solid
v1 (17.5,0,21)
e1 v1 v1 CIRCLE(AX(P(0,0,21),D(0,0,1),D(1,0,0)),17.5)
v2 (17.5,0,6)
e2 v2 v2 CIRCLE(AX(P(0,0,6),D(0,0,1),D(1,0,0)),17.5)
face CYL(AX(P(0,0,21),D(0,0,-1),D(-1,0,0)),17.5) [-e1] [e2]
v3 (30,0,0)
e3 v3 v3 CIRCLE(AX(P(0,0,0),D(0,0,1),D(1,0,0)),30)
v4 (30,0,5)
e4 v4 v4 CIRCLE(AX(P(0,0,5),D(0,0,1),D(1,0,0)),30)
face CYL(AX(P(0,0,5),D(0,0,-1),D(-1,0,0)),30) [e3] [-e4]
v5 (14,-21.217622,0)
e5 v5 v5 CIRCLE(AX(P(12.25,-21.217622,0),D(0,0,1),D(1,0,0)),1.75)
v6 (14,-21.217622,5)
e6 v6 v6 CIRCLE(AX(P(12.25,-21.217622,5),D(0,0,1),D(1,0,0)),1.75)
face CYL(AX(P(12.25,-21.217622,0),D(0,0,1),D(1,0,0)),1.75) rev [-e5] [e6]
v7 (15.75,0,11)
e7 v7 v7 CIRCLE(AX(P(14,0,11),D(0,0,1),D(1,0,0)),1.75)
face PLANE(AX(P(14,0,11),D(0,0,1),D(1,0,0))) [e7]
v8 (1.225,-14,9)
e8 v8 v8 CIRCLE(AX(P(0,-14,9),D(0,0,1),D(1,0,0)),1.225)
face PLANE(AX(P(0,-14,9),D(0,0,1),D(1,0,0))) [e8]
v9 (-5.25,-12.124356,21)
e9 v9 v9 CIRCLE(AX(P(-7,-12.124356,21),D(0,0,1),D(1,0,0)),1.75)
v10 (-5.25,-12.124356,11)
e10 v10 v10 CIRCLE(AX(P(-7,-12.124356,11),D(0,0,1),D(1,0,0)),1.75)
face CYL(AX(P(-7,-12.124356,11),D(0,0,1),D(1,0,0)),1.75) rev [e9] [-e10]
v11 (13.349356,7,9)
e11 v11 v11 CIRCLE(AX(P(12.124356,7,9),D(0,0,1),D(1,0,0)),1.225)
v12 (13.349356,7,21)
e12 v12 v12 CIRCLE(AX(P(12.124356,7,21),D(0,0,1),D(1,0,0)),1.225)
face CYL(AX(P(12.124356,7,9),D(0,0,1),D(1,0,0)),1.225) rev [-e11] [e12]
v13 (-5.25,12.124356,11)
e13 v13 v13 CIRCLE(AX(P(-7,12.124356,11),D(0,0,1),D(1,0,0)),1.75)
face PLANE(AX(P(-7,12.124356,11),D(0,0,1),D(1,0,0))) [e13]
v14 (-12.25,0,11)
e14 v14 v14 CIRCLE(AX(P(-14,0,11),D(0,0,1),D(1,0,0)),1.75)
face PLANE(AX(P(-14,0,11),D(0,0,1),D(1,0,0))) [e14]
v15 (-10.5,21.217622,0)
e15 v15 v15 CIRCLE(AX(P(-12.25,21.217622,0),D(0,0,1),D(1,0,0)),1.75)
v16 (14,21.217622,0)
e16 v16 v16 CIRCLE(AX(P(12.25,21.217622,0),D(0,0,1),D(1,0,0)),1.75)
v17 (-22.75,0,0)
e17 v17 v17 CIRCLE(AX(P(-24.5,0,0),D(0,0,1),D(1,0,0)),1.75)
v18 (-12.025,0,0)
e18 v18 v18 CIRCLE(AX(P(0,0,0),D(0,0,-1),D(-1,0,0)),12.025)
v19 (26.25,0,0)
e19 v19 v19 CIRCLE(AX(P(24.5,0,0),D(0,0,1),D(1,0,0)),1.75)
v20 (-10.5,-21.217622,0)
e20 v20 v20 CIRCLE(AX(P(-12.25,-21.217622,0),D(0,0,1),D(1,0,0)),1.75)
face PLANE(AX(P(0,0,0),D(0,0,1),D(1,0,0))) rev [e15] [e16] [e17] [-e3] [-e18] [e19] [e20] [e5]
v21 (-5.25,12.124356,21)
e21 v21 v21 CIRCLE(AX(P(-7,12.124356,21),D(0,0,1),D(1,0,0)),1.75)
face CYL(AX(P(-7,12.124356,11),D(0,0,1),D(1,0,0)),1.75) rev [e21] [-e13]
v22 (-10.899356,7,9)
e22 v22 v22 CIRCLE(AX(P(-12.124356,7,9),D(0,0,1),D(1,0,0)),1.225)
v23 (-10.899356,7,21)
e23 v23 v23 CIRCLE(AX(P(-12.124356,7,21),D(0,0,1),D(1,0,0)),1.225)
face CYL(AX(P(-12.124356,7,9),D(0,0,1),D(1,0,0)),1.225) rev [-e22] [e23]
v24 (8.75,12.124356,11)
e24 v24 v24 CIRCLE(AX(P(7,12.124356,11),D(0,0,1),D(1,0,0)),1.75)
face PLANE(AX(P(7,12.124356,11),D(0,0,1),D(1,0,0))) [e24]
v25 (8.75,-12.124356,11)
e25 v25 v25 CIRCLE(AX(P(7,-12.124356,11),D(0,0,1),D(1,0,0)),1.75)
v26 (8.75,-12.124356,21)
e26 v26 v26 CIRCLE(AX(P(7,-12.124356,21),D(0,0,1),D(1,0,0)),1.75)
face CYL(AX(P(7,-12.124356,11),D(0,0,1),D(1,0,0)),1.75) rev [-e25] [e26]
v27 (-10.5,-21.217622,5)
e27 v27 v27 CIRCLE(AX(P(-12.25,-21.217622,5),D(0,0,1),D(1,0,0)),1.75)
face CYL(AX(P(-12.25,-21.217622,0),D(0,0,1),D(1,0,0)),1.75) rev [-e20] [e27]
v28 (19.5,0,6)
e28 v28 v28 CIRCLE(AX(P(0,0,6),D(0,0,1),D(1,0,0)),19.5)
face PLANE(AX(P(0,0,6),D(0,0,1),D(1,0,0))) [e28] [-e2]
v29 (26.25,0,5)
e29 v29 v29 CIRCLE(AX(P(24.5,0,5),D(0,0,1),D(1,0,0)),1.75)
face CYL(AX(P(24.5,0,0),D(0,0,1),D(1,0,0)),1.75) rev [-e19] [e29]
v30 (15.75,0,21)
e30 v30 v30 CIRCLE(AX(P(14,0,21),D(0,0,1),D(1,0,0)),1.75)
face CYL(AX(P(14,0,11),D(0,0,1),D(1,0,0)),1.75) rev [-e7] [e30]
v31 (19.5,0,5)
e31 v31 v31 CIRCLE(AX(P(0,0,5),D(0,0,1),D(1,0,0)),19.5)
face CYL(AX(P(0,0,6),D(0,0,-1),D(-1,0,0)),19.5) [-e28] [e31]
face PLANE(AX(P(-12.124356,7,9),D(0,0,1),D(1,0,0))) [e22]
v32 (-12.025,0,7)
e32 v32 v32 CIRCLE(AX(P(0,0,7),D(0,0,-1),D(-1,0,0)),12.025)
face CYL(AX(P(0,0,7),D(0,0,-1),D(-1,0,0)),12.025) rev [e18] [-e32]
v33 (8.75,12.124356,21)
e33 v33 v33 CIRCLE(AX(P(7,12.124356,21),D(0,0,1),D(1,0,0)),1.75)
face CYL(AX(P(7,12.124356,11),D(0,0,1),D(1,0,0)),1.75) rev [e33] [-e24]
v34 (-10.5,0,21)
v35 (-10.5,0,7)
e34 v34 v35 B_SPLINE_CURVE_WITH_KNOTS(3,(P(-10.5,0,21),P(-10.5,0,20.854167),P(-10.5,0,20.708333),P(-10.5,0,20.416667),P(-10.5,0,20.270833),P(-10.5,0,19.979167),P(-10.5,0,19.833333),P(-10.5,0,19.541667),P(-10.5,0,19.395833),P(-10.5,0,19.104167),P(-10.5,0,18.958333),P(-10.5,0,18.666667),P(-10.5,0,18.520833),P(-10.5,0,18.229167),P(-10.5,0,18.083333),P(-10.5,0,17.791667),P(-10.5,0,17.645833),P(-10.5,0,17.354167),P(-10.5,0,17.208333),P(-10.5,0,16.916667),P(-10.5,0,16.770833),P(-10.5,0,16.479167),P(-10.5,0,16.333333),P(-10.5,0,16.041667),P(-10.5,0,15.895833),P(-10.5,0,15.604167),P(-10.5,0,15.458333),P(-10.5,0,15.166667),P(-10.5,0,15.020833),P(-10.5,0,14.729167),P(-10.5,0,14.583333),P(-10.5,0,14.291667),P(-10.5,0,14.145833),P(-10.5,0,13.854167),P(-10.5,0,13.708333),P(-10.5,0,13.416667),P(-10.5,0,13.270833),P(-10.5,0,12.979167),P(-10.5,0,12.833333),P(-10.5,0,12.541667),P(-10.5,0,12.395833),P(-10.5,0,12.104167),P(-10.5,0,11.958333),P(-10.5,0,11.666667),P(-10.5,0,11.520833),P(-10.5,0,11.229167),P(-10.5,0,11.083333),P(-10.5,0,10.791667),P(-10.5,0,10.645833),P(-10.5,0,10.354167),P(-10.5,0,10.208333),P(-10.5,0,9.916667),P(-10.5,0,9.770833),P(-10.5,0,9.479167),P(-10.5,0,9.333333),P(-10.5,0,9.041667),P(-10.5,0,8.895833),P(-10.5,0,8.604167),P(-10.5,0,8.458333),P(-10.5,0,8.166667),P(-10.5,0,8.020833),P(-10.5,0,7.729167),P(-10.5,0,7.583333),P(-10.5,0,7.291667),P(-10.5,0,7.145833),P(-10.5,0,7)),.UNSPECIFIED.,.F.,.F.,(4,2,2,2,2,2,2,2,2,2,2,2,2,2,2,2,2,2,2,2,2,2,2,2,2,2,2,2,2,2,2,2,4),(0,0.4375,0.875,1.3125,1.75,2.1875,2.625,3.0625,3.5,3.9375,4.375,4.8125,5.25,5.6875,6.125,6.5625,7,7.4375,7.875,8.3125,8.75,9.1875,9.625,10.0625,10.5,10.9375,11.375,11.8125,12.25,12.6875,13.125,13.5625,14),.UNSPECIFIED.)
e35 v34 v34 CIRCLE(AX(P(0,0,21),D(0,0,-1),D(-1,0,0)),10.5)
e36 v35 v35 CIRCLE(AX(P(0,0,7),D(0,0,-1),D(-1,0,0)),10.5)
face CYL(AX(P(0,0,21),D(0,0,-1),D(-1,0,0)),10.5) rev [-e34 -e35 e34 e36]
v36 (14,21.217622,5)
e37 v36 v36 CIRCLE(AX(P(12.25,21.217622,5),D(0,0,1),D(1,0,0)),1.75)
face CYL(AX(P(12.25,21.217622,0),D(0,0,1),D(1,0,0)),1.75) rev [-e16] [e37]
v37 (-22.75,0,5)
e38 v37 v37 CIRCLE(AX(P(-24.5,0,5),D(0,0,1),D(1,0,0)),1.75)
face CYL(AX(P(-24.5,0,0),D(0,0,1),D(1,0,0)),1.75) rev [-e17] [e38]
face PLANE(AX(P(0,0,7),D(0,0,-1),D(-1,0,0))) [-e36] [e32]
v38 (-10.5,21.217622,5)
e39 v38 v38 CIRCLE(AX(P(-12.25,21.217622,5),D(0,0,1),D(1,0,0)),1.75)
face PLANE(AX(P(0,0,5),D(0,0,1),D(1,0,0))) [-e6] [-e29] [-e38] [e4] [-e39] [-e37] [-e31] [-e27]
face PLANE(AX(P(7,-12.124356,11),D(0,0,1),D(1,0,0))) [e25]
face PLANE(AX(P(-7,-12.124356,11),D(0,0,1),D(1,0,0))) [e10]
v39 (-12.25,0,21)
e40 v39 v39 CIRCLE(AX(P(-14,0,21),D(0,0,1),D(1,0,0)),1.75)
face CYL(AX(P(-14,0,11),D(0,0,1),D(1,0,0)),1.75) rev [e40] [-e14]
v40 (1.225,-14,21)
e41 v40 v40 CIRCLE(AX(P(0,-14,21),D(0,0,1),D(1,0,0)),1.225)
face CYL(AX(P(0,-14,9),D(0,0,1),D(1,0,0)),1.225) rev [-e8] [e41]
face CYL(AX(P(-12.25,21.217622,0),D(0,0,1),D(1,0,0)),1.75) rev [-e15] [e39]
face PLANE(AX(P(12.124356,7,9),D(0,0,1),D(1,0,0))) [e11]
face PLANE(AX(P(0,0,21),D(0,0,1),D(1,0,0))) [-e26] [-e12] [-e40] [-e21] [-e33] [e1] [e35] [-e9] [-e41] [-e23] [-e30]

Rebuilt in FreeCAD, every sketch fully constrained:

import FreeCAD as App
import Part
import Sketcher

V = App.Vector

doc = App.newDocument("Part")
params = doc.addObject("Spreadsheet::Sheet", "Params")
for row, (alias, value) in enumerate([
    ("sketch1_diameter", "60 mm"),
    ("pad1_length", "5 mm"),
    ("sketch2_diameter", "39 mm"),
    ("pad2_length", "1 mm"),
    ("sketch3_diameter", "35 mm"),
    ("pad3_length", "15 mm"),
    ("sketch4_diameter", "24.05 mm"),
    ("pocket1_length", "7 mm"),
    ("sketch5_diameter", "21 mm"),
    ("sketch6_diameter", "3.5 mm"),
    ("sketch7_diameter", "3.5 mm"),
    ("pocket4_length", "10 mm"),
    ("sketch8_diameter", "2.45 mm"),
    ("pocket5_length", "12 mm"),
], start=1):
    params.set(f"A{row}", alias)
    params.set(f"B{row}", "=" + value)
    params.setAlias(f"B{row}", alias)

body = doc.addObject("PartDesign::Body", "Body")

# Sketch on XY plane
sketch1 = body.newObject("Sketcher::SketchObject", "Sketch")
sketch1.AttachmentSupport = (doc.getObject("XY_Plane"), [""])
sketch1.MapMode = "FlatFace"
sketch1.addGeometry(Part.Circle(V(0, 0, 0), V(0, 0, 1), 30), False)
sketch1.addConstraint([
    Sketcher.Constraint("Coincident", 0, 3, -1, 1),
    Sketcher.Constraint("Diameter", 0, 60.0),
])
sketch1.setExpression("Constraints[1]", "Params.sketch1_diameter")
pad1 = body.newObject("PartDesign::Pad", "Pad")
pad1.Profile = sketch1
pad1.setExpression("Length", "Params.pad1_length")

# Sketch on XY plane
sketch2 = body.newObject("Sketcher::SketchObject", "Sketch001")
sketch2.AttachmentSupport = (doc.getObject("XY_Plane"), [""])
sketch2.MapMode = "FlatFace"
sketch2.AttachmentOffset = App.Placement(V(0, 0, 5), App.Rotation())
sketch2.addGeometry(Part.Circle(V(0, 0, 0), V(0, 0, 1), 20), False)
sketch2.addConstraint([
    Sketcher.Constraint("Coincident", 0, 3, -1, 1),
    Sketcher.Constraint("Diameter", 0, 39.0),
])
sketch2.setExpression("Constraints[1]", "Params.sketch2_diameter")
pad2 = body.newObject("PartDesign::Pad", "Pad001")
pad2.Profile = sketch2
pad2.setExpression("Length", "Params.pad2_length")

# Sketch on XY plane
sketch3 = body.newObject("Sketcher::SketchObject", "Sketch002")
sketch3.AttachmentSupport = (doc.getObject("XY_Plane"), [""])
sketch3.MapMode = "FlatFace"
sketch3.AttachmentOffset = App.Placement(V(0, 0, 6), App.Rotation())
sketch3.addGeometry(Part.Circle(V(0, 0, 0), V(0, 0, 1), 18), False)
sketch3.addConstraint([
    Sketcher.Constraint("Coincident", 0, 3, -1, 1),
    Sketcher.Constraint("Diameter", 0, 35.0),
])
sketch3.setExpression("Constraints[1]", "Params.sketch3_diameter")
pad3 = body.newObject("PartDesign::Pad", "Pad002")
pad3.Profile = sketch3
pad3.setExpression("Length", "Params.pad3_length")

# Sketch on XY plane
sketch4 = body.newObject("Sketcher::SketchObject", "Sketch003")
sketch4.AttachmentSupport = (doc.getObject("XY_Plane"), [""])
sketch4.MapMode = "FlatFace"
sketch4.addGeometry(Part.Circle(V(0, 0, 0), V(0, 0, 1), 12), False)
sketch4.addConstraint([
    Sketcher.Constraint("Coincident", 0, 3, -1, 1),
    Sketcher.Constraint("Diameter", 0, 24.05),
])
sketch4.setExpression("Constraints[1]", "Params.sketch4_diameter")
pocket1 = body.newObject("PartDesign::Pocket", "Pocket")
pocket1.Profile = sketch4
pocket1.setExpression("Length", "Params.pocket1_length")
pocket1.Reversed = True

# Sketch on XY plane
sketch5 = body.newObject("Sketcher::SketchObject", "Sketch004")
sketch5.AttachmentSupport = (doc.getObject("XY_Plane"), [""])
sketch5.MapMode = "FlatFace"
sketch5.AttachmentOffset = App.Placement(V(0, 0, 7), App.Rotation())
sketch5.addGeometry(Part.Circle(V(0, 0, 0), V(0, 0, 1), 10), False)
sketch5.addConstraint([
    Sketcher.Constraint("Coincident", 0, 3, -1, 1),
    Sketcher.Constraint("Diameter", 0, 21.0),
])
sketch5.setExpression("Constraints[1]", "Params.sketch5_diameter")
pocket2 = body.newObject("PartDesign::Pocket", "Pocket001")
pocket2.Profile = sketch5
pocket2.Type = "ThroughAll"
pocket2.Reversed = True

# Sketch on XY plane
sketch6 = body.newObject("Sketcher::SketchObject", "Sketch005")
sketch6.AttachmentSupport = (doc.getObject("XY_Plane"), [""])
sketch6.MapMode = "FlatFace"
sketch6.AttachmentOffset = App.Placement(V(0, 0, 5), App.Rotation())
sketch6.addGeometry([
    Part.Circle(V(24.5, 0, 0), V(0, 0, 1), 1.8),  # 0
    Part.Circle(V(12.2, -21.2, 0), V(0, 0, 1), 1.8),  # 1
    Part.Circle(V(-12.2, -21.2, 0), V(0, 0, 1), 1.8),  # 2
    Part.Circle(V(-24.5, 0, 0), V(0, 0, 1), 1.8),  # 3
    Part.Circle(V(-12.2, 21.2, 0), V(0, 0, 1), 1.8),  # 4
    Part.Circle(V(12.2, 21.2, 0), V(0, 0, 1), 1.8),  # 5
], False)
sketch6.addConstraint([
    Sketcher.Constraint("Equal", 0, 1),
    Sketcher.Constraint("Equal", 1, 2),
    Sketcher.Constraint("Equal", 2, 3),
    Sketcher.Constraint("Equal", 3, 4),
    Sketcher.Constraint("Equal", 4, 5),
    Sketcher.Constraint("Symmetric", 0, 3, 3, 3, -1, 1),
    Sketcher.Constraint("Symmetric", 1, 3, 4, 3, -1, 1),
    Sketcher.Constraint("Symmetric", 2, 3, 5, 3, -1, 1),
    Sketcher.Constraint("Symmetric", 1, 3, 2, 3, -2),
    Sketcher.Constraint("PointOnObject", 0, 3, -1),
    Sketcher.Constraint("Diameter", 0, 3.5),
    Sketcher.Constraint("DistanceX", 3, 3, 0, 3, 49.0),
    Sketcher.Constraint("DistanceX", 2, 3, 1, 3, 24.5),
    Sketcher.Constraint("DistanceY", 1, 3, -1, 1, 21.217622),
])
sketch6.setExpression("Constraints[10]", "Params.sketch6_diameter")
pocket3 = body.newObject("PartDesign::Pocket", "Pocket002")
pocket3.Profile = sketch6
pocket3.Type = "ThroughAll"

# Sketch on XY plane
sketch7 = body.newObject("Sketcher::SketchObject", "Sketch006")
sketch7.AttachmentSupport = (doc.getObject("XY_Plane"), [""])
sketch7.MapMode = "FlatFace"
sketch7.AttachmentOffset = App.Placement(V(0, 0, 21), App.Rotation())
sketch7.addGeometry([
    Part.Circle(V(14, 0, 0), V(0, 0, 1), 1.8),  # 0
    Part.Circle(V(7, -12.1, 0), V(0, 0, 1), 1.8),  # 1
    Part.Circle(V(-7, -12.1, 0), V(0, 0, 1), 1.8),  # 2
    Part.Circle(V(-14, 0, 0), V(0, 0, 1), 1.8),  # 3
    Part.Circle(V(-7, 12.1, 0), V(0, 0, 1), 1.8),  # 4
    Part.Circle(V(7, 12.1, 0), V(0, 0, 1), 1.8),  # 5
], False)
sketch7.addConstraint([
    Sketcher.Constraint("Equal", 0, 1),
    Sketcher.Constraint("Equal", 1, 2),
    Sketcher.Constraint("Equal", 2, 3),
    Sketcher.Constraint("Equal", 3, 4),
    Sketcher.Constraint("Equal", 4, 5),
    Sketcher.Constraint("Symmetric", 0, 3, 3, 3, -1, 1),
    Sketcher.Constraint("Symmetric", 1, 3, 4, 3, -1, 1),
    Sketcher.Constraint("Symmetric", 2, 3, 5, 3, -1, 1),
    Sketcher.Constraint("Symmetric", 1, 3, 2, 3, -2),
    Sketcher.Constraint("PointOnObject", 0, 3, -1),
    Sketcher.Constraint("Diameter", 0, 3.5),
    Sketcher.Constraint("DistanceX", -1, 1, 0, 3, 14.0),
    Sketcher.Constraint("DistanceX", -1, 1, 1, 3, 7.0),
    Sketcher.Constraint("DistanceY", 2, 3, 4, 3, 24.248711),
])
sketch7.setExpression("Constraints[10]", "Params.sketch7_diameter")
pocket4 = body.newObject("PartDesign::Pocket", "Pocket003")
pocket4.Profile = sketch7
pocket4.setExpression("Length", "Params.pocket4_length")

# Sketch on XY plane
sketch8 = body.newObject("Sketcher::SketchObject", "Sketch007")
sketch8.AttachmentSupport = (doc.getObject("XY_Plane"), [""])
sketch8.MapMode = "FlatFace"
sketch8.AttachmentOffset = App.Placement(V(0, 0, 21), App.Rotation())
sketch8.addGeometry([
    Part.Circle(V(12.1, 7, 0), V(0, 0, 1), 1.2),
    Part.Circle(V(0, -14, 0), V(0, 0, 1), 1.2),
    Part.Circle(V(-12.1, 7, 0), V(0, 0, 1), 1.2),
], False)
sketch8.addConstraint([
    Sketcher.Constraint("Equal", 0, 1),
    Sketcher.Constraint("Equal", 1, 2),
    Sketcher.Constraint("Symmetric", 0, 3, 2, 3, -2),
    Sketcher.Constraint("PointOnObject", 1, 3, -2),
    Sketcher.Constraint("Diameter", 0, 2.45),
    Sketcher.Constraint("DistanceY", -1, 1, 0, 3, 7.0),
    Sketcher.Constraint("DistanceY", 1, 3, -1, 1, 14.0),
    Sketcher.Constraint("DistanceX", 2, 3, 0, 3, 24.248711),
])
sketch8.setExpression("Constraints[4]", "Params.sketch8_diameter")
pocket5 = body.newObject("PartDesign::Pocket", "Pocket004")
pocket5.Profile = sketch8
pocket5.setExpression("Length", "Params.pocket5_length")

doc.recompute()
